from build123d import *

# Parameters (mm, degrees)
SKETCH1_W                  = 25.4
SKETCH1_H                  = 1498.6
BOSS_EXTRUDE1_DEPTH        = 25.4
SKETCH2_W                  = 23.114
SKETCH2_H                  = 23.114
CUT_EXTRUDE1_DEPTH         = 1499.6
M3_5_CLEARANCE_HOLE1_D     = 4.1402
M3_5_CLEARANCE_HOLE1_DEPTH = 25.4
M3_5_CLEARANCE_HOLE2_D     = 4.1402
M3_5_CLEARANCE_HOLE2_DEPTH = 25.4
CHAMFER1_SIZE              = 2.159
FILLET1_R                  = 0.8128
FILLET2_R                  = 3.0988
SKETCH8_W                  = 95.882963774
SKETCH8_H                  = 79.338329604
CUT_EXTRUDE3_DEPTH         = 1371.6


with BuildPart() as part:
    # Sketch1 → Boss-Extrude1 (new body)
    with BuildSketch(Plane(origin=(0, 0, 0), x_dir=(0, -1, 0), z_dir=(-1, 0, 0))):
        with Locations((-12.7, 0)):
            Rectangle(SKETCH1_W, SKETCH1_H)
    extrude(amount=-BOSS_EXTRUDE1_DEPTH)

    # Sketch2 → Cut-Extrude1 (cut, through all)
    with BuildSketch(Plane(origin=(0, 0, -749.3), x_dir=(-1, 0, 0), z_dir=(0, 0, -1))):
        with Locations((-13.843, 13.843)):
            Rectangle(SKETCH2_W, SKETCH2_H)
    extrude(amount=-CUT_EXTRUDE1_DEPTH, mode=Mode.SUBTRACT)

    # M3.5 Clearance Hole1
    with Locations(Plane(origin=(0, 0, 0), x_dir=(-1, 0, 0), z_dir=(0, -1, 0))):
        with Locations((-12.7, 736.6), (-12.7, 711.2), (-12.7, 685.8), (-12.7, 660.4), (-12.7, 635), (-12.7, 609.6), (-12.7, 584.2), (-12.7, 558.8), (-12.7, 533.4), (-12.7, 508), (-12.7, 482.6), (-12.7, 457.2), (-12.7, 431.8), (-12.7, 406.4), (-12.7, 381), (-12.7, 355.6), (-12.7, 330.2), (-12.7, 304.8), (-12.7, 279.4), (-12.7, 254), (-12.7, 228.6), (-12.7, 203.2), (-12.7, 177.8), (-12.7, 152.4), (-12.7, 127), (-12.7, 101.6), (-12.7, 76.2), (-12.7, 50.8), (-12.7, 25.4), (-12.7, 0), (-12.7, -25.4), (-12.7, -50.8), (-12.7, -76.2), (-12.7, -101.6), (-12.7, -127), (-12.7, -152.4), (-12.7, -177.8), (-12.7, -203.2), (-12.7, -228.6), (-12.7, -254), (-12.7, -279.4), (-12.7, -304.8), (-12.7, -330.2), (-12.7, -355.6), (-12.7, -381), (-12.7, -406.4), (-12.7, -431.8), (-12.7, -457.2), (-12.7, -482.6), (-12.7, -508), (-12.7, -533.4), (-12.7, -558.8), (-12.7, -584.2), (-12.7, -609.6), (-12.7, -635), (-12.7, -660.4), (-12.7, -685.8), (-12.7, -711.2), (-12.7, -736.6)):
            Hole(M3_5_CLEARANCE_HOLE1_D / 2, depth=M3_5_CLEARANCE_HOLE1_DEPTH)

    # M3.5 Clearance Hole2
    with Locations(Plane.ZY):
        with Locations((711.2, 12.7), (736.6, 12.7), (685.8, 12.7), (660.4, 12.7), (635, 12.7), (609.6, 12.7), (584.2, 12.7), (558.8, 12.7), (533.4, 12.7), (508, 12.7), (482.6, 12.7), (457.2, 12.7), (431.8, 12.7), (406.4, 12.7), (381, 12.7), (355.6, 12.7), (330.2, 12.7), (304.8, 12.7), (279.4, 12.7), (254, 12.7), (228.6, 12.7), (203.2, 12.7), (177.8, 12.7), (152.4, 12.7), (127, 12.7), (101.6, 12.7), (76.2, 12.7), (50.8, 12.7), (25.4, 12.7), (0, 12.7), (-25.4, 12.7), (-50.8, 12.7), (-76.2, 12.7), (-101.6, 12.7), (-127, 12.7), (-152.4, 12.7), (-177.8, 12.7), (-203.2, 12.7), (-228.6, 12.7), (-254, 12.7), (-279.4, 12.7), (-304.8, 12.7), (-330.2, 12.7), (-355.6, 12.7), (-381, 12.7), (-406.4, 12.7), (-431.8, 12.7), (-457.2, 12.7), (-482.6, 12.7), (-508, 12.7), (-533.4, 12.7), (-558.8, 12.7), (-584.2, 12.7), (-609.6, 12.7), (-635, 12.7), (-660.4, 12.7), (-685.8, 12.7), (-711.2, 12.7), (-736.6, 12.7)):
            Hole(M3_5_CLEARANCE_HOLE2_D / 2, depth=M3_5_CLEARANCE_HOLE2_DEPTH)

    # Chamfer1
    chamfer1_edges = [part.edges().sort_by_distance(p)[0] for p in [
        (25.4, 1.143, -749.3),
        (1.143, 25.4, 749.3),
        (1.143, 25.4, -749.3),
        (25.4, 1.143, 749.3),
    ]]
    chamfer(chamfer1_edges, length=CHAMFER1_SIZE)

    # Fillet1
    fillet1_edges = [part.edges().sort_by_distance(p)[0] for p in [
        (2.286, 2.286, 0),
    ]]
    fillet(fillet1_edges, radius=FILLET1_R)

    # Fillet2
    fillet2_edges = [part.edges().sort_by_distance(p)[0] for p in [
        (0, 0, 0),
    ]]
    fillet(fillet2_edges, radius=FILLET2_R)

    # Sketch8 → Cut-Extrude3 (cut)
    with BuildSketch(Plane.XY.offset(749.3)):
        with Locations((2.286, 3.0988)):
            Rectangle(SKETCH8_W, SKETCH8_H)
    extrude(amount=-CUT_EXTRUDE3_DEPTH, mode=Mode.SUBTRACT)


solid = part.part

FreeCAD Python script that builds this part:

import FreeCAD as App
import Part
import Sketcher
Q = App.Units.Quantity


def edges_at(feature, points):
    """Names of the edges that pass closest to the given points."""
    edges = feature.Shape.Edges
    near = lambda p: min(range(len(edges)), key=lambda i: edges[i].distToShape(Part.Vertex(*p))[0])
    return sorted({f"Edge{near(p) + 1}" for p in points})


def add_polygon(sketch, points):
    """Adds a closed chain of lines whose ends are joined by coincident constraints."""
    first, n = sketch.GeometryCount, len(points)
    for a, b in zip(points, points[1:] + points[:1]):
        sketch.addGeometry(Part.LineSegment(App.Vector(*a, 0), App.Vector(*b, 0)), False)
    for i in range(n):
        sketch.addConstraint(Sketcher.Constraint("Coincident", first + i, 2, first + (i + 1) % n, 1))

doc = App.newDocument("Part")
params = doc.addObject("Spreadsheet::Sheet", "Params")
for row, (alias, value) in enumerate([
    ("sketch1_width", "1 in"),
    ("sketch1_height", "59 in"),
    ("pad1_length", "1 in"),
    ("sketch2_width", "0.91 in"),
    ("sketch3_diameter", "0.163 in"),
    ("hole_diameter", "0.163 in"),
    ("hole_depth", "1 in"),
    ("sketch4_diameter", "0.163 in"),
    ("hole2_diameter", "0.163 in"),
    ("hole2_depth", "1 in"),
    ("chamfer_size", "0.085 in"),
    ("fillet_radius", "0.032 in"),
    ("fillet2_radius", "0.122 in"),
    ("pocket2_length", "54 in"),
], start=1):
    params.set(f"A{row}", alias)
    params.set(f"B{row}", "=" + value)
    params.setAlias(f"B{row}", alias)

body = doc.addObject("PartDesign::Body", "Body")

# Sketch on YZ plane
sketch1 = doc.addObject("Sketcher::SketchObject", "Sketch")
body.addObject(sketch1)
sketch1.AttachmentSupport = (doc.YZ_Plane, [""])
sketch1.MapMode = "FlatFace"
add_polygon(sketch1, [(25.4, 749.3), (25.4, -749.3), (0, -749.3), (0, 749.3)])  # lines 0-3
sketch1.addConstraint([
    Sketcher.Constraint("Vertical", 0),
    Sketcher.Constraint("Horizontal", 1),
    Sketcher.Constraint("Vertical", 2),
    Sketcher.Constraint("Horizontal", 3),
    Sketcher.Constraint("Symmetric", 1, 2, 2, 2, -1, 1),
    Sketcher.Constraint("DistanceX", 1, 2, 1, 1, Q("1 in")),
    Sketcher.Constraint("DistanceY", 0, 2, 0, 1, Q("59 in")),
])
sketch1.setExpression("Constraints[9]", "Params.sketch1_width")
sketch1.setExpression("Constraints[10]", "Params.sketch1_height")
pad1 = doc.addObject("PartDesign::Pad", "Pad")
body.addObject(pad1)
pad1.Profile = sketch1
pad1.setExpression("Length", "Params.pad1_length")

# Sketch on XY plane
sketch2 = doc.addObject("Sketcher::SketchObject", "Sketch001")
body.addObject(sketch2)
sketch2.AttachmentSupport = (doc.XY_Plane, [""])
sketch2.MapMode = "FlatFace"
sketch2.AttachmentOffset = App.Placement(App.Vector(0, 0, -29.5 * 25.4), App.Rotation())
add_polygon(sketch2, [(25.4, 25.4), (25.4, 2.286), (2.286, 2.286), (2.286, 25.4)])  # lines 0-3
sketch2.addConstraint([
    Sketcher.Constraint("Vertical", 0),
    Sketcher.Constraint("Horizontal", 1),
    Sketcher.Constraint("Vertical", 2),
    Sketcher.Constraint("Horizontal", 3),
    Sketcher.Constraint("Equal", 3, 0),
    Sketcher.Constraint("DistanceX", -1, 1, 0, 2, Q("1 in")),
    Sketcher.Constraint("DistanceY", -1, 1, 2, 2, Q("1 in")),
    Sketcher.Constraint("DistanceX", 1, 2, 1, 1, Q("0.91 in")),
])
sketch2.setExpression("Constraints[11]", "Params.sketch2_width")
pocket1 = doc.addObject("PartDesign::Pocket", "Pocket")
body.addObject(pocket1)
pocket1.Profile = sketch2
pocket1.Type = "ThroughAll"
pocket1.Reversed = True

# Sketch on XZ plane
sketch3 = doc.addObject("Sketcher::SketchObject", "Sketch002")
body.addObject(sketch3)
sketch3.AttachmentSupport = (doc.XZ_Plane, [""])
sketch3.MapMode = "FlatFace"
sketch3.addGeometry([
    Part.Circle(App.Vector(12.7, -736.6, 0), App.Vector(0, 0, 1), 2.0701),  # 0
    Part.Circle(App.Vector(12.7, -711.2, 0), App.Vector(0, 0, 1), 2.0701),  # 1
    Part.Circle(App.Vector(12.7, -685.8, 0), App.Vector(0, 0, 1), 2.0701),  # 2
    Part.Circle(App.Vector(12.7, -660.4, 0), App.Vector(0, 0, 1), 2.0701),  # 3
    Part.Circle(App.Vector(12.7, -635, 0), App.Vector(0, 0, 1), 2.0701),  # 4
    Part.Circle(App.Vector(12.7, -609.6, 0), App.Vector(0, 0, 1), 2.0701),  # 5
    Part.Circle(App.Vector(12.7, -584.2, 0), App.Vector(0, 0, 1), 2.0701),  # 6
    Part.Circle(App.Vector(12.7, -558.8, 0), App.Vector(0, 0, 1), 2.0701),  # 7
    Part.Circle(App.Vector(12.7, -533.4, 0), App.Vector(0, 0, 1), 2.0701),  # 8
    Part.Circle(App.Vector(12.7, -508, 0), App.Vector(0, 0, 1), 2.0701),  # 9
    Part.Circle(App.Vector(12.7, -482.6, 0), App.Vector(0, 0, 1), 2.0701),  # 10
    Part.Circle(App.Vector(12.7, -457.2, 0), App.Vector(0, 0, 1), 2.0701),  # 11
    Part.Circle(App.Vector(12.7, -431.8, 0), App.Vector(0, 0, 1), 2.0701),  # 12
    Part.Circle(App.Vector(12.7, -406.4, 0), App.Vector(0, 0, 1), 2.0701),  # 13
    Part.Circle(App.Vector(12.7, -381, 0), App.Vector(0, 0, 1), 2.0701),  # 14
    Part.Circle(App.Vector(12.7, -355.6, 0), App.Vector(0, 0, 1), 2.0701),  # 15
    Part.Circle(App.Vector(12.7, -330.2, 0), App.Vector(0, 0, 1), 2.0701),  # 16
    Part.Circle(App.Vector(12.7, -304.8, 0), App.Vector(0, 0, 1), 2.0701),  # 17
    Part.Circle(App.Vector(12.7, -279.4, 0), App.Vector(0, 0, 1), 2.0701),  # 18
    Part.Circle(App.Vector(12.7, -254, 0), App.Vector(0, 0, 1), 2.0701),  # 19
    Part.Circle(App.Vector(12.7, -228.6, 0), App.Vector(0, 0, 1), 2.0701),  # 20
    Part.Circle(App.Vector(12.7, -203.2, 0), App.Vector(0, 0, 1), 2.0701),  # 21
    Part.Circle(App.Vector(12.7, -177.8, 0), App.Vector(0, 0, 1), 2.0701),  # 22
    Part.Circle(App.Vector(12.7, -152.4, 0), App.Vector(0, 0, 1), 2.0701),  # 23
    Part.Circle(App.Vector(12.7, -127, 0), App.Vector(0, 0, 1), 2.0701),  # 24
    Part.Circle(App.Vector(12.7, -101.6, 0), App.Vector(0, 0, 1), 2.0701),  # 25
    Part.Circle(App.Vector(12.7, -76.2, 0), App.Vector(0, 0, 1), 2.0701),  # 26
    Part.Circle(App.Vector(12.7, -50.8, 0), App.Vector(0, 0, 1), 2.0701),  # 27
    Part.Circle(App.Vector(12.7, -25.4, 0), App.Vector(0, 0, 1), 2.0701),  # 28
    Part.Circle(App.Vector(12.7, 0, 0), App.Vector(0, 0, 1), 2.0701),  # 29
    Part.Circle(App.Vector(12.7, 25.4, 0), App.Vector(0, 0, 1), 2.0701),  # 30
    Part.Circle(App.Vector(12.7, 50.8, 0), App.Vector(0, 0, 1), 2.0701),  # 31
    Part.Circle(App.Vector(12.7, 76.2, 0), App.Vector(0, 0, 1), 2.0701),  # 32
    Part.Circle(App.Vector(12.7, 101.6, 0), App.Vector(0, 0, 1), 2.0701),  # 33
    Part.Circle(App.Vector(12.7, 127, 0), App.Vector(0, 0, 1), 2.0701),  # 34
    Part.Circle(App.Vector(12.7, 152.4, 0), App.Vector(0, 0, 1), 2.0701),  # 35
    Part.Circle(App.Vector(12.7, 177.8, 0), App.Vector(0, 0, 1), 2.0701),  # 36
    Part.Circle(App.Vector(12.7, 203.2, 0), App.Vector(0, 0, 1), 2.0701),  # 37
    Part.Circle(App.Vector(12.7, 228.6, 0), App.Vector(0, 0, 1), 2.0701),  # 38
    Part.Circle(App.Vector(12.7, 254, 0), App.Vector(0, 0, 1), 2.0701),  # 39
    Part.Circle(App.Vector(12.7, 279.4, 0), App.Vector(0, 0, 1), 2.0701),  # 40
    Part.Circle(App.Vector(12.7, 304.8, 0), App.Vector(0, 0, 1), 2.0701),  # 41
    Part.Circle(App.Vector(12.7, 330.2, 0), App.Vector(0, 0, 1), 2.0701),  # 42
    Part.Circle(App.Vector(12.7, 355.6, 0), App.Vector(0, 0, 1), 2.0701),  # 43
    Part.Circle(App.Vector(12.7, 381, 0), App.Vector(0, 0, 1), 2.0701),  # 44
    Part.Circle(App.Vector(12.7, 406.4, 0), App.Vector(0, 0, 1), 2.0701),  # 45
    Part.Circle(App.Vector(12.7, 431.8, 0), App.Vector(0, 0, 1), 2.0701),  # 46
    Part.Circle(App.Vector(12.7, 457.2, 0), App.Vector(0, 0, 1), 2.0701),  # 47
    Part.Circle(App.Vector(12.7, 482.6, 0), App.Vector(0, 0, 1), 2.0701),  # 48
    Part.Circle(App.Vector(12.7, 508, 0), App.Vector(0, 0, 1), 2.0701),  # 49
    Part.Circle(App.Vector(12.7, 533.4, 0), App.Vector(0, 0, 1), 2.0701),  # 50
    Part.Circle(App.Vector(12.7, 558.8, 0), App.Vector(0, 0, 1), 2.0701),  # 51
    Part.Circle(App.Vector(12.7, 584.2, 0), App.Vector(0, 0, 1), 2.0701),  # 52
    Part.Circle(App.Vector(12.7, 609.6, 0), App.Vector(0, 0, 1), 2.0701),  # 53
    Part.Circle(App.Vector(12.7, 635, 0), App.Vector(0, 0, 1), 2.0701),  # 54
    Part.Circle(App.Vector(12.7, 660.4, 0), App.Vector(0, 0, 1), 2.0701),  # 55
    Part.Circle(App.Vector(12.7, 685.8, 0), App.Vector(0, 0, 1), 2.0701),  # 56
    Part.Circle(App.Vector(12.7, 711.2, 0), App.Vector(0, 0, 1), 2.0701),  # 57
    Part.Circle(App.Vector(12.7, 736.6, 0), App.Vector(0, 0, 1), 2.0701),  # 58
], False)
sketch3.addConstraint([
    Sketcher.Constraint("Equal", 0, 1),
    Sketcher.Constraint("Equal", 1, 2),
    Sketcher.Constraint("Equal", 2, 3),
    Sketcher.Constraint("Equal", 3, 4),
    Sketcher.Constraint("Equal", 4, 5),
    Sketcher.Constraint("Equal", 5, 6),
    Sketcher.Constraint("Equal", 6, 7),
    Sketcher.Constraint("Equal", 7, 8),
    Sketcher.Constraint("Equal", 8, 9),
    Sketcher.Constraint("Equal", 9, 10),
    Sketcher.Constraint("Equal", 10, 11),
    Sketcher.Constraint("Equal", 11, 12),
    Sketcher.Constraint("Equal", 12, 13),
    Sketcher.Constraint("Equal", 13, 14),
    Sketcher.Constraint("Equal", 14, 15),
    Sketcher.Constraint("Equal", 15, 16),
    Sketcher.Constraint("Equal", 16, 17),
    Sketcher.Constraint("Equal", 17, 18),
    Sketcher.Constraint("Equal", 18, 19),
    Sketcher.Constraint("Equal", 19, 20),
    Sketcher.Constraint("Equal", 20, 21),
    Sketcher.Constraint("Equal", 21, 22),
    Sketcher.Constraint("Equal", 22, 23),
    Sketcher.Constraint("Equal", 23, 24),
    Sketcher.Constraint("Equal", 24, 25),
    Sketcher.Constraint("Equal", 25, 26),
    Sketcher.Constraint("Equal", 26, 27),
    Sketcher.Constraint("Equal", 27, 28),
    Sketcher.Constraint("Equal", 28, 29),
    Sketcher.Constraint("Equal", 29, 30),
    Sketcher.Constraint("Equal", 30, 31),
    Sketcher.Constraint("Equal", 31, 32),
    Sketcher.Constraint("Equal", 32, 33),
    Sketcher.Constraint("Equal", 33, 34),
    Sketcher.Constraint("Equal", 34, 35),
    Sketcher.Constraint("Equal", 35, 36),
    Sketcher.Constraint("Equal", 36, 37),
    Sketcher.Constraint("Equal", 37, 38),
    Sketcher.Constraint("Equal", 38, 39),
    Sketcher.Constraint("Equal", 39, 40),
    Sketcher.Constraint("Equal", 40, 41),
    Sketcher.Constraint("Equal", 41, 42),
    Sketcher.Constraint("Equal", 42, 43),
    Sketcher.Constraint("Equal", 43, 44),
    Sketcher.Constraint("Equal", 44, 45),
    Sketcher.Constraint("Equal", 45, 46),
    Sketcher.Constraint("Equal", 46, 47),
    Sketcher.Constraint("Equal", 47, 48),
    Sketcher.Constraint("Equal", 48, 49),
    Sketcher.Constraint("Equal", 49, 50),
    Sketcher.Constraint("Equal", 50, 51),
    Sketcher.Constraint("Equal", 51, 52),
    Sketcher.Constraint("Equal", 52, 53),
    Sketcher.Constraint("Equal", 53, 54),
    Sketcher.Constraint("Equal", 54, 55),
    Sketcher.Constraint("Equal", 55, 56),
    Sketcher.Constraint("Equal", 56, 57),
    Sketcher.Constraint("Equal", 57, 58),
    Sketcher.Constraint("Symmetric", 28, 3, 30, 3, -1),
    Sketcher.Constraint("Symmetric", 27, 3, 31, 3, -1),
    Sketcher.Constraint("Symmetric", 26, 3, 32, 3, -1),
    Sketcher.Constraint("Symmetric", 25, 3, 33, 3, -1),
    Sketcher.Constraint("Symmetric", 24, 3, 34, 3, -1),
    Sketcher.Constraint("Symmetric", 23, 3, 35, 3, -1),
    Sketcher.Constraint("Symmetric", 22, 3, 36, 3, -1),
    Sketcher.Constraint("Symmetric", 21, 3, 37, 3, -1),
    Sketcher.Constraint("Symmetric", 20, 3, 38, 3, -1),
    Sketcher.Constraint("Symmetric", 19, 3, 39, 3, -1),
    Sketcher.Constraint("Symmetric", 18, 3, 40, 3, -1),
    Sketcher.Constraint("Symmetric", 17, 3, 41, 3, -1),
    Sketcher.Constraint("Symmetric", 16, 3, 42, 3, -1),
    Sketcher.Constraint("Symmetric", 15, 3, 43, 3, -1),
    Sketcher.Constraint("Symmetric", 14, 3, 44, 3, -1),
    Sketcher.Constraint("Symmetric", 13, 3, 45, 3, -1),
    Sketcher.Constraint("Symmetric", 12, 3, 46, 3, -1),
    Sketcher.Constraint("Symmetric", 11, 3, 47, 3, -1),
    Sketcher.Constraint("Symmetric", 10, 3, 48, 3, -1),
    Sketcher.Constraint("Symmetric", 9, 3, 49, 3, -1),
    Sketcher.Constraint("Symmetric", 8, 3, 50, 3, -1),
    Sketcher.Constraint("Symmetric", 7, 3, 51, 3, -1),
    Sketcher.Constraint("Symmetric", 6, 3, 52, 3, -1),
    Sketcher.Constraint("Symmetric", 5, 3, 53, 3, -1),
    Sketcher.Constraint("Symmetric", 4, 3, 54, 3, -1),
    Sketcher.Constraint("Symmetric", 3, 3, 55, 3, -1),
    Sketcher.Constraint("Symmetric", 2, 3, 56, 3, -1),
    Sketcher.Constraint("Symmetric", 1, 3, 57, 3, -1),
    Sketcher.Constraint("Symmetric", 0, 3, 58, 3, -1),
    Sketcher.Constraint("PointOnObject", 29, 3, -1),
    Sketcher.Constraint("Vertical", 0, 3, 1, 3),
    Sketcher.Constraint("Vertical", 1, 3, 2, 3),
    Sketcher.Constraint("Vertical", 2, 3, 3, 3),
    Sketcher.Constraint("Vertical", 3, 3, 4, 3),
    Sketcher.Constraint("Vertical", 4, 3, 5, 3),
    Sketcher.Constraint("Vertical", 5, 3, 6, 3),
    Sketcher.Constraint("Vertical", 6, 3, 7, 3),
    Sketcher.Constraint("Vertical", 7, 3, 8, 3),
    Sketcher.Constraint("Vertical", 8, 3, 9, 3),
    Sketcher.Constraint("Vertical", 9, 3, 10, 3),
    Sketcher.Constraint("Vertical", 10, 3, 11, 3),
    Sketcher.Constraint("Vertical", 11, 3, 12, 3),
    Sketcher.Constraint("Vertical", 12, 3, 13, 3),
    Sketcher.Constraint("Vertical", 13, 3, 14, 3),
    Sketcher.Constraint("Vertical", 14, 3, 15, 3),
    Sketcher.Constraint("Vertical", 15, 3, 16, 3),
    Sketcher.Constraint("Vertical", 16, 3, 17, 3),
    Sketcher.Constraint("Vertical", 17, 3, 18, 3),
    Sketcher.Constraint("Vertical", 18, 3, 19, 3),
    Sketcher.Constraint("Vertical", 19, 3, 20, 3),
    Sketcher.Constraint("Vertical", 20, 3, 21, 3),
    Sketcher.Constraint("Vertical", 21, 3, 22, 3),
    Sketcher.Constraint("Vertical", 22, 3, 23, 3),
    Sketcher.Constraint("Vertical", 23, 3, 24, 3),
    Sketcher.Constraint("Vertical", 24, 3, 25, 3),
    Sketcher.Constraint("Vertical", 25, 3, 26, 3),
    Sketcher.Constraint("Vertical", 26, 3, 27, 3),
    Sketcher.Constraint("Vertical", 27, 3, 28, 3),
    Sketcher.Constraint("Vertical", 28, 3, 29, 3),
    Sketcher.Constraint("Diameter", 0, Q("0.163 in")),
    Sketcher.Constraint("DistanceY", 0, 3, -1, 1, Q("29 in")),
    Sketcher.Constraint("DistanceY", 1, 3, -1, 1, Q("28 in")),
    Sketcher.Constraint("DistanceY", 2, 3, -1, 1, Q("27 in")),
    Sketcher.Constraint("DistanceY", 3, 3, -1, 1, Q("26 in")),
    Sketcher.Constraint("DistanceY", 4, 3, -1, 1, Q("25 in")),
    Sketcher.Constraint("DistanceY", 5, 3, -1, 1, Q("24 in")),
    Sketcher.Constraint("DistanceY", 6, 3, -1, 1, Q("23 in")),
    Sketcher.Constraint("DistanceY", 7, 3, -1, 1, Q("22 in")),
    Sketcher.Constraint("DistanceY", 8, 3, -1, 1, Q("21 in")),
    Sketcher.Constraint("DistanceY", 9, 3, -1, 1, Q("20 in")),
    Sketcher.Constraint("DistanceY", 10, 3, -1, 1, Q("19 in")),
    Sketcher.Constraint("DistanceY", 11, 3, -1, 1, Q("18 in")),
    Sketcher.Constraint("DistanceY", 12, 3, -1, 1, Q("17 in")),
    Sketcher.Constraint("DistanceY", 13, 3, -1, 1, Q("16 in")),
    Sketcher.Constraint("DistanceY", 14, 3, -1, 1, Q("15 in")),
    Sketcher.Constraint("DistanceY", 15, 3, -1, 1, Q("14 in")),
    Sketcher.Constraint("DistanceY", 16, 3, -1, 1, Q("13 in")),
    Sketcher.Constraint("DistanceY", 17, 3, -1, 1, Q("12 in")),
    Sketcher.Constraint("DistanceY", 18, 3, -1, 1, Q("11 in")),
    Sketcher.Constraint("DistanceY", 19, 3, -1, 1, Q("10 in")),
    Sketcher.Constraint("DistanceY", 20, 3, -1, 1, Q("9 in")),
    Sketcher.Constraint("DistanceY", 21, 3, -1, 1, Q("8 in")),
    Sketcher.Constraint("DistanceY", 22, 3, -1, 1, Q("7 in")),
    Sketcher.Constraint("DistanceY", 23, 3, -1, 1, Q("6 in")),
    Sketcher.Constraint("DistanceY", 24, 3, -1, 1, Q("5 in")),
    Sketcher.Constraint("DistanceY", 25, 3, -1, 1, Q("4 in")),
    Sketcher.Constraint("DistanceY", 26, 3, -1, 1, Q("3 in")),
    Sketcher.Constraint("DistanceY", 27, 3, -1, 1, Q("2 in")),
    Sketcher.Constraint("DistanceY", 28, 3, -1, 1, Q("1 in")),
    Sketcher.Constraint("DistanceX", -1, 1, 0, 3, Q("0.5 in")),
])
sketch3.setExpression("Constraints[117]", "Params.sketch3_diameter")
doc.recompute()
hole = doc.addObject("PartDesign::Hole", "Hole")
body.addObject(hole)
hole.Profile = sketch3
hole.ThreadType = "None"
hole.setExpression("Diameter", "Params.hole_diameter")
hole.DepthType = "Dimension"
hole.setExpression("Depth", "Params.hole_depth")
hole.DrillPoint = "Flat"

# Sketch on YZ plane
sketch4 = doc.addObject("Sketcher::SketchObject", "Sketch003")
body.addObject(sketch4)
sketch4.AttachmentSupport = (doc.YZ_Plane, [""])
sketch4.MapMode = "FlatFace"
sketch4.addGeometry([
    Part.Circle(App.Vector(12.7, 711.2, 0), App.Vector(0, 0, 1), 2.0701),  # 0
    Part.Circle(App.Vector(12.7, 736.6, 0), App.Vector(0, 0, 1), 2.0701),  # 1
    Part.Circle(App.Vector(12.7, 685.8, 0), App.Vector(0, 0, 1), 2.0701),  # 2
    Part.Circle(App.Vector(12.7, 660.4, 0), App.Vector(0, 0, 1), 2.0701),  # 3
    Part.Circle(App.Vector(12.7, 635, 0), App.Vector(0, 0, 1), 2.0701),  # 4
    Part.Circle(App.Vector(12.7, 609.6, 0), App.Vector(0, 0, 1), 2.0701),  # 5
    Part.Circle(App.Vector(12.7, 584.2, 0), App.Vector(0, 0, 1), 2.0701),  # 6
    Part.Circle(App.Vector(12.7, 558.8, 0), App.Vector(0, 0, 1), 2.0701),  # 7
    Part.Circle(App.Vector(12.7, 533.4, 0), App.Vector(0, 0, 1), 2.0701),  # 8
    Part.Circle(App.Vector(12.7, 508, 0), App.Vector(0, 0, 1), 2.0701),  # 9
    Part.Circle(App.Vector(12.7, 482.6, 0), App.Vector(0, 0, 1), 2.0701),  # 10
    Part.Circle(App.Vector(12.7, 457.2, 0), App.Vector(0, 0, 1), 2.0701),  # 11
    Part.Circle(App.Vector(12.7, 431.8, 0), App.Vector(0, 0, 1), 2.0701),  # 12
    Part.Circle(App.Vector(12.7, 406.4, 0), App.Vector(0, 0, 1), 2.0701),  # 13
    Part.Circle(App.Vector(12.7, 381, 0), App.Vector(0, 0, 1), 2.0701),  # 14
    Part.Circle(App.Vector(12.7, 355.6, 0), App.Vector(0, 0, 1), 2.0701),  # 15
    Part.Circle(App.Vector(12.7, 330.2, 0), App.Vector(0, 0, 1), 2.0701),  # 16
    Part.Circle(App.Vector(12.7, 304.8, 0), App.Vector(0, 0, 1), 2.0701),  # 17
    Part.Circle(App.Vector(12.7, 279.4, 0), App.Vector(0, 0, 1), 2.0701),  # 18
    Part.Circle(App.Vector(12.7, 254, 0), App.Vector(0, 0, 1), 2.0701),  # 19
    Part.Circle(App.Vector(12.7, 228.6, 0), App.Vector(0, 0, 1), 2.0701),  # 20
    Part.Circle(App.Vector(12.7, 203.2, 0), App.Vector(0, 0, 1), 2.0701),  # 21
    Part.Circle(App.Vector(12.7, 177.8, 0), App.Vector(0, 0, 1), 2.0701),  # 22
    Part.Circle(App.Vector(12.7, 152.4, 0), App.Vector(0, 0, 1), 2.0701),  # 23
    Part.Circle(App.Vector(12.7, 127, 0), App.Vector(0, 0, 1), 2.0701),  # 24
    Part.Circle(App.Vector(12.7, 101.6, 0), App.Vector(0, 0, 1), 2.0701),  # 25
    Part.Circle(App.Vector(12.7, 76.2, 0), App.Vector(0, 0, 1), 2.0701),  # 26
    Part.Circle(App.Vector(12.7, 50.8, 0), App.Vector(0, 0, 1), 2.0701),  # 27
    Part.Circle(App.Vector(12.7, 25.4, 0), App.Vector(0, 0, 1), 2.0701),  # 28
    Part.Circle(App.Vector(12.7, 0, 0), App.Vector(0, 0, 1), 2.0701),  # 29
    Part.Circle(App.Vector(12.7, -25.4, 0), App.Vector(0, 0, 1), 2.0701),  # 30
    Part.Circle(App.Vector(12.7, -50.8, 0), App.Vector(0, 0, 1), 2.0701),  # 31
    Part.Circle(App.Vector(12.7, -76.2, 0), App.Vector(0, 0, 1), 2.0701),  # 32
    Part.Circle(App.Vector(12.7, -101.6, 0), App.Vector(0, 0, 1), 2.0701),  # 33
    Part.Circle(App.Vector(12.7, -127, 0), App.Vector(0, 0, 1), 2.0701),  # 34
    Part.Circle(App.Vector(12.7, -152.4, 0), App.Vector(0, 0, 1), 2.0701),  # 35
    Part.Circle(App.Vector(12.7, -177.8, 0), App.Vector(0, 0, 1), 2.0701),  # 36
    Part.Circle(App.Vector(12.7, -203.2, 0), App.Vector(0, 0, 1), 2.0701),  # 37
    Part.Circle(App.Vector(12.7, -228.6, 0), App.Vector(0, 0, 1), 2.0701),  # 38
    Part.Circle(App.Vector(12.7, -254, 0), App.Vector(0, 0, 1), 2.0701),  # 39
    Part.Circle(App.Vector(12.7, -279.4, 0), App.Vector(0, 0, 1), 2.0701),  # 40
    Part.Circle(App.Vector(12.7, -304.8, 0), App.Vector(0, 0, 1), 2.0701),  # 41
    Part.Circle(App.Vector(12.7, -330.2, 0), App.Vector(0, 0, 1), 2.0701),  # 42
    Part.Circle(App.Vector(12.7, -355.6, 0), App.Vector(0, 0, 1), 2.0701),  # 43
    Part.Circle(App.Vector(12.7, -381, 0), App.Vector(0, 0, 1), 2.0701),  # 44
    Part.Circle(App.Vector(12.7, -406.4, 0), App.Vector(0, 0, 1), 2.0701),  # 45
    Part.Circle(App.Vector(12.7, -431.8, 0), App.Vector(0, 0, 1), 2.0701),  # 46
    Part.Circle(App.Vector(12.7, -457.2, 0), App.Vector(0, 0, 1), 2.0701),  # 47
    Part.Circle(App.Vector(12.7, -482.6, 0), App.Vector(0, 0, 1), 2.0701),  # 48
    Part.Circle(App.Vector(12.7, -508, 0), App.Vector(0, 0, 1), 2.0701),  # 49
    Part.Circle(App.Vector(12.7, -533.4, 0), App.Vector(0, 0, 1), 2.0701),  # 50
    Part.Circle(App.Vector(12.7, -558.8, 0), App.Vector(0, 0, 1), 2.0701),  # 51
    Part.Circle(App.Vector(12.7, -584.2, 0), App.Vector(0, 0, 1), 2.0701),  # 52
    Part.Circle(App.Vector(12.7, -609.6, 0), App.Vector(0, 0, 1), 2.0701),  # 53
    Part.Circle(App.Vector(12.7, -635, 0), App.Vector(0, 0, 1), 2.0701),  # 54
    Part.Circle(App.Vector(12.7, -660.4, 0), App.Vector(0, 0, 1), 2.0701),  # 55
    Part.Circle(App.Vector(12.7, -685.8, 0), App.Vector(0, 0, 1), 2.0701),  # 56
    Part.Circle(App.Vector(12.7, -711.2, 0), App.Vector(0, 0, 1), 2.0701),  # 57
    Part.Circle(App.Vector(12.7, -736.6, 0), App.Vector(0, 0, 1), 2.0701),  # 58
], False)
sketch4.addConstraint([
    Sketcher.Constraint("Equal", 0, 1),
    Sketcher.Constraint("Equal", 1, 2),
    Sketcher.Constraint("Equal", 2, 3),
    Sketcher.Constraint("Equal", 3, 4),
    Sketcher.Constraint("Equal", 4, 5),
    Sketcher.Constraint("Equal", 5, 6),
    Sketcher.Constraint("Equal", 6, 7),
    Sketcher.Constraint("Equal", 7, 8),
    Sketcher.Constraint("Equal", 8, 9),
    Sketcher.Constraint("Equal", 9, 10),
    Sketcher.Constraint("Equal", 10, 11),
    Sketcher.Constraint("Equal", 11, 12),
    Sketcher.Constraint("Equal", 12, 13),
    Sketcher.Constraint("Equal", 13, 14),
    Sketcher.Constraint("Equal", 14, 15),
    Sketcher.Constraint("Equal", 15, 16),
    Sketcher.Constraint("Equal", 16, 17),
    Sketcher.Constraint("Equal", 17, 18),
    Sketcher.Constraint("Equal", 18, 19),
    Sketcher.Constraint("Equal", 19, 20),
    Sketcher.Constraint("Equal", 20, 21),
    Sketcher.Constraint("Equal", 21, 22),
    Sketcher.Constraint("Equal", 22, 23),
    Sketcher.Constraint("Equal", 23, 24),
    Sketcher.Constraint("Equal", 24, 25),
    Sketcher.Constraint("Equal", 25, 26),
    Sketcher.Constraint("Equal", 26, 27),
    Sketcher.Constraint("Equal", 27, 28),
    Sketcher.Constraint("Equal", 28, 29),
    Sketcher.Constraint("Equal", 29, 30),
    Sketcher.Constraint("Equal", 30, 31),
    Sketcher.Constraint("Equal", 31, 32),
    Sketcher.Constraint("Equal", 32, 33),
    Sketcher.Constraint("Equal", 33, 34),
    Sketcher.Constraint("Equal", 34, 35),
    Sketcher.Constraint("Equal", 35, 36),
    Sketcher.Constraint("Equal", 36, 37),
    Sketcher.Constraint("Equal", 37, 38),
    Sketcher.Constraint("Equal", 38, 39),
    Sketcher.Constraint("Equal", 39, 40),
    Sketcher.Constraint("Equal", 40, 41),
    Sketcher.Constraint("Equal", 41, 42),
    Sketcher.Constraint("Equal", 42, 43),
    Sketcher.Constraint("Equal", 43, 44),
    Sketcher.Constraint("Equal", 44, 45),
    Sketcher.Constraint("Equal", 45, 46),
    Sketcher.Constraint("Equal", 46, 47),
    Sketcher.Constraint("Equal", 47, 48),
    Sketcher.Constraint("Equal", 48, 49),
    Sketcher.Constraint("Equal", 49, 50),
    Sketcher.Constraint("Equal", 50, 51),
    Sketcher.Constraint("Equal", 51, 52),
    Sketcher.Constraint("Equal", 52, 53),
    Sketcher.Constraint("Equal", 53, 54),
    Sketcher.Constraint("Equal", 54, 55),
    Sketcher.Constraint("Equal", 55, 56),
    Sketcher.Constraint("Equal", 56, 57),
    Sketcher.Constraint("Equal", 57, 58),
    Sketcher.Constraint("Symmetric", 28, 3, 30, 3, -1),
    Sketcher.Constraint("Symmetric", 27, 3, 31, 3, -1),
    Sketcher.Constraint("Symmetric", 26, 3, 32, 3, -1),
    Sketcher.Constraint("Symmetric", 25, 3, 33, 3, -1),
    Sketcher.Constraint("Symmetric", 24, 3, 34, 3, -1),
    Sketcher.Constraint("Symmetric", 23, 3, 35, 3, -1),
    Sketcher.Constraint("Symmetric", 22, 3, 36, 3, -1),
    Sketcher.Constraint("Symmetric", 21, 3, 37, 3, -1),
    Sketcher.Constraint("Symmetric", 20, 3, 38, 3, -1),
    Sketcher.Constraint("Symmetric", 19, 3, 39, 3, -1),
    Sketcher.Constraint("Symmetric", 18, 3, 40, 3, -1),
    Sketcher.Constraint("Symmetric", 17, 3, 41, 3, -1),
    Sketcher.Constraint("Symmetric", 16, 3, 42, 3, -1),
    Sketcher.Constraint("Symmetric", 15, 3, 43, 3, -1),
    Sketcher.Constraint("Symmetric", 14, 3, 44, 3, -1),
    Sketcher.Constraint("Symmetric", 13, 3, 45, 3, -1),
    Sketcher.Constraint("Symmetric", 12, 3, 46, 3, -1),
    Sketcher.Constraint("Symmetric", 11, 3, 47, 3, -1),
    Sketcher.Constraint("Symmetric", 10, 3, 48, 3, -1),
    Sketcher.Constraint("Symmetric", 9, 3, 49, 3, -1),
    Sketcher.Constraint("Symmetric", 8, 3, 50, 3, -1),
    Sketcher.Constraint("Symmetric", 7, 3, 51, 3, -1),
    Sketcher.Constraint("Symmetric", 6, 3, 52, 3, -1),
    Sketcher.Constraint("Symmetric", 5, 3, 53, 3, -1),
    Sketcher.Constraint("Symmetric", 4, 3, 54, 3, -1),
    Sketcher.Constraint("Symmetric", 3, 3, 55, 3, -1),
    Sketcher.Constraint("Symmetric", 2, 3, 56, 3, -1),
    Sketcher.Constraint("Symmetric", 0, 3, 57, 3, -1),
    Sketcher.Constraint("Symmetric", 1, 3, 58, 3, -1),
    Sketcher.Constraint("PointOnObject", 29, 3, -1),
    Sketcher.Constraint("Vertical", 0, 3, 1, 3),
    Sketcher.Constraint("Vertical", 1, 3, 2, 3),
    Sketcher.Constraint("Vertical", 2, 3, 3, 3),
    Sketcher.Constraint("Vertical", 3, 3, 4, 3),
    Sketcher.Constraint("Vertical", 4, 3, 5, 3),
    Sketcher.Constraint("Vertical", 5, 3, 6, 3),
    Sketcher.Constraint("Vertical", 6, 3, 7, 3),
    Sketcher.Constraint("Vertical", 7, 3, 8, 3),
    Sketcher.Constraint("Vertical", 8, 3, 9, 3),
    Sketcher.Constraint("Vertical", 9, 3, 10, 3),
    Sketcher.Constraint("Vertical", 10, 3, 11, 3),
    Sketcher.Constraint("Vertical", 11, 3, 12, 3),
    Sketcher.Constraint("Vertical", 12, 3, 13, 3),
    Sketcher.Constraint("Vertical", 13, 3, 14, 3),
    Sketcher.Constraint("Vertical", 14, 3, 15, 3),
    Sketcher.Constraint("Vertical", 15, 3, 16, 3),
    Sketcher.Constraint("Vertical", 16, 3, 17, 3),
    Sketcher.Constraint("Vertical", 17, 3, 18, 3),
    Sketcher.Constraint("Vertical", 18, 3, 19, 3),
    Sketcher.Constraint("Vertical", 19, 3, 20, 3),
    Sketcher.Constraint("Vertical", 20, 3, 21, 3),
    Sketcher.Constraint("Vertical", 21, 3, 22, 3),
    Sketcher.Constraint("Vertical", 22, 3, 23, 3),
    Sketcher.Constraint("Vertical", 23, 3, 24, 3),
    Sketcher.Constraint("Vertical", 24, 3, 25, 3),
    Sketcher.Constraint("Vertical", 25, 3, 26, 3),
    Sketcher.Constraint("Vertical", 26, 3, 27, 3),
    Sketcher.Constraint("Vertical", 27, 3, 28, 3),
    Sketcher.Constraint("Vertical", 28, 3, 29, 3),
    Sketcher.Constraint("Diameter", 0, Q("0.163 in")),
    Sketcher.Constraint("DistanceY", -1, 1, 0, 3, Q("28 in")),
    Sketcher.Constraint("DistanceY", -1, 1, 1, 3, Q("29 in")),
    Sketcher.Constraint("DistanceY", -1, 1, 2, 3, Q("27 in")),
    Sketcher.Constraint("DistanceY", -1, 1, 3, 3, Q("26 in")),
    Sketcher.Constraint("DistanceY", -1, 1, 4, 3, Q("25 in")),
    Sketcher.Constraint("DistanceY", -1, 1, 5, 3, Q("24 in")),
    Sketcher.Constraint("DistanceY", -1, 1, 6, 3, Q("23 in")),
    Sketcher.Constraint("DistanceY", -1, 1, 7, 3, Q("22 in")),
    Sketcher.Constraint("DistanceY", -1, 1, 8, 3, Q("21 in")),
    Sketcher.Constraint("DistanceY", -1, 1, 9, 3, Q("20 in")),
    Sketcher.Constraint("DistanceY", -1, 1, 10, 3, Q("19 in")),
    Sketcher.Constraint("DistanceY", -1, 1, 11, 3, Q("18 in")),
    Sketcher.Constraint("DistanceY", -1, 1, 12, 3, Q("17 in")),
    Sketcher.Constraint("DistanceY", -1, 1, 13, 3, Q("16 in")),
    Sketcher.Constraint("DistanceY", -1, 1, 14, 3, Q("15 in")),
    Sketcher.Constraint("DistanceY", -1, 1, 15, 3, Q("14 in")),
    Sketcher.Constraint("DistanceY", -1, 1, 16, 3, Q("13 in")),
    Sketcher.Constraint("DistanceY", -1, 1, 17, 3, Q("12 in")),
    Sketcher.Constraint("DistanceY", -1, 1, 18, 3, Q("11 in")),
    Sketcher.Constraint("DistanceY", -1, 1, 19, 3, Q("10 in")),
    Sketcher.Constraint("DistanceY", -1, 1, 20, 3, Q("9 in")),
    Sketcher.Constraint("DistanceY", -1, 1, 21, 3, Q("8 in")),
    Sketcher.Constraint("DistanceY", -1, 1, 22, 3, Q("7 in")),
    Sketcher.Constraint("DistanceY", -1, 1, 23, 3, Q("6 in")),
    Sketcher.Constraint("DistanceY", -1, 1, 24, 3, Q("5 in")),
    Sketcher.Constraint("DistanceY", -1, 1, 25, 3, Q("4 in")),
    Sketcher.Constraint("DistanceY", -1, 1, 26, 3, Q("3 in")),
    Sketcher.Constraint("DistanceY", -1, 1, 27, 3, Q("2 in")),
    Sketcher.Constraint("DistanceY", -1, 1, 28, 3, Q("1 in")),
    Sketcher.Constraint("DistanceX", -1, 1, 0, 3, Q("0.5 in")),
])
sketch4.setExpression("Constraints[117]", "Params.sketch4_diameter")
doc.recompute()
hole2 = doc.addObject("PartDesign::Hole", "Hole001")
body.addObject(hole2)
hole2.Profile = sketch4
hole2.ThreadType = "None"
hole2.setExpression("Diameter", "Params.hole2_diameter")
hole2.DepthType = "Dimension"
hole2.setExpression("Depth", "Params.hole2_depth")
hole2.DrillPoint = "Flat"
hole2.Reversed = True
doc.recompute()

chamfer = doc.addObject("PartDesign::Chamfer", "Chamfer")
body.addObject(chamfer)
chamfer.Base = (hole2, edges_at(hole2, [
    (25.4, 1.143, -749.3),
    (1.143, 25.4, 749.3),
    (1.143, 25.4, -749.3),
    (25.4, 1.143, 749.3),
]))
chamfer.setExpression("Size", "Params.chamfer_size")
doc.recompute()

fillet = doc.addObject("PartDesign::Fillet", "Fillet")
body.addObject(fillet)
fillet.Base = (chamfer, edges_at(chamfer, [(2.286, 2.286, 0)]))
fillet.setExpression("Radius", "Params.fillet_radius")
doc.recompute()

fillet2 = doc.addObject("PartDesign::Fillet", "Fillet001")
body.addObject(fillet2)
fillet2.Base = (fillet, edges_at(fillet, [(0, 0, 0)]))
fillet2.setExpression("Radius", "Params.fillet2_radius")

# Sketch on XY plane
sketch5 = doc.addObject("Sketcher::SketchObject", "Sketch004")
body.addObject(sketch5)
sketch5.AttachmentSupport = (doc.XY_Plane, [""])
sketch5.MapMode = "FlatFace"
sketch5.AttachmentOffset = App.Placement(App.Vector(0, 0, 29.5 * 25.4), App.Rotation())
add_polygon(sketch5, [(-45.655482, 42.767965), (-45.655482, -36.570365), (50.227482, -36.570365), (50.227482, 42.767965)])  # lines 0-3
sketch5.addConstraint([
    Sketcher.Constraint("Vertical", 0),
    Sketcher.Constraint("Horizontal", 1),
    Sketcher.Constraint("Vertical", 2),
    Sketcher.Constraint("Horizontal", 3),
    Sketcher.Constraint("DistanceY", 0, 2, 0, 1, 79.33833),
    Sketcher.Constraint("DistanceX", 1, 1, 1, 2, 95.882964),
    Sketcher.Constraint("DistanceX", 0, 2, -1, 1, 45.655482),
    Sketcher.Constraint("DistanceY", 0, 2, -1, 1, 36.570365),
])
pocket2 = doc.addObject("PartDesign::Pocket", "Pocket001")
body.addObject(pocket2)
pocket2.Profile = sketch5
pocket2.setExpression("Length", "Params.pocket2_length")

doc.recompute()
